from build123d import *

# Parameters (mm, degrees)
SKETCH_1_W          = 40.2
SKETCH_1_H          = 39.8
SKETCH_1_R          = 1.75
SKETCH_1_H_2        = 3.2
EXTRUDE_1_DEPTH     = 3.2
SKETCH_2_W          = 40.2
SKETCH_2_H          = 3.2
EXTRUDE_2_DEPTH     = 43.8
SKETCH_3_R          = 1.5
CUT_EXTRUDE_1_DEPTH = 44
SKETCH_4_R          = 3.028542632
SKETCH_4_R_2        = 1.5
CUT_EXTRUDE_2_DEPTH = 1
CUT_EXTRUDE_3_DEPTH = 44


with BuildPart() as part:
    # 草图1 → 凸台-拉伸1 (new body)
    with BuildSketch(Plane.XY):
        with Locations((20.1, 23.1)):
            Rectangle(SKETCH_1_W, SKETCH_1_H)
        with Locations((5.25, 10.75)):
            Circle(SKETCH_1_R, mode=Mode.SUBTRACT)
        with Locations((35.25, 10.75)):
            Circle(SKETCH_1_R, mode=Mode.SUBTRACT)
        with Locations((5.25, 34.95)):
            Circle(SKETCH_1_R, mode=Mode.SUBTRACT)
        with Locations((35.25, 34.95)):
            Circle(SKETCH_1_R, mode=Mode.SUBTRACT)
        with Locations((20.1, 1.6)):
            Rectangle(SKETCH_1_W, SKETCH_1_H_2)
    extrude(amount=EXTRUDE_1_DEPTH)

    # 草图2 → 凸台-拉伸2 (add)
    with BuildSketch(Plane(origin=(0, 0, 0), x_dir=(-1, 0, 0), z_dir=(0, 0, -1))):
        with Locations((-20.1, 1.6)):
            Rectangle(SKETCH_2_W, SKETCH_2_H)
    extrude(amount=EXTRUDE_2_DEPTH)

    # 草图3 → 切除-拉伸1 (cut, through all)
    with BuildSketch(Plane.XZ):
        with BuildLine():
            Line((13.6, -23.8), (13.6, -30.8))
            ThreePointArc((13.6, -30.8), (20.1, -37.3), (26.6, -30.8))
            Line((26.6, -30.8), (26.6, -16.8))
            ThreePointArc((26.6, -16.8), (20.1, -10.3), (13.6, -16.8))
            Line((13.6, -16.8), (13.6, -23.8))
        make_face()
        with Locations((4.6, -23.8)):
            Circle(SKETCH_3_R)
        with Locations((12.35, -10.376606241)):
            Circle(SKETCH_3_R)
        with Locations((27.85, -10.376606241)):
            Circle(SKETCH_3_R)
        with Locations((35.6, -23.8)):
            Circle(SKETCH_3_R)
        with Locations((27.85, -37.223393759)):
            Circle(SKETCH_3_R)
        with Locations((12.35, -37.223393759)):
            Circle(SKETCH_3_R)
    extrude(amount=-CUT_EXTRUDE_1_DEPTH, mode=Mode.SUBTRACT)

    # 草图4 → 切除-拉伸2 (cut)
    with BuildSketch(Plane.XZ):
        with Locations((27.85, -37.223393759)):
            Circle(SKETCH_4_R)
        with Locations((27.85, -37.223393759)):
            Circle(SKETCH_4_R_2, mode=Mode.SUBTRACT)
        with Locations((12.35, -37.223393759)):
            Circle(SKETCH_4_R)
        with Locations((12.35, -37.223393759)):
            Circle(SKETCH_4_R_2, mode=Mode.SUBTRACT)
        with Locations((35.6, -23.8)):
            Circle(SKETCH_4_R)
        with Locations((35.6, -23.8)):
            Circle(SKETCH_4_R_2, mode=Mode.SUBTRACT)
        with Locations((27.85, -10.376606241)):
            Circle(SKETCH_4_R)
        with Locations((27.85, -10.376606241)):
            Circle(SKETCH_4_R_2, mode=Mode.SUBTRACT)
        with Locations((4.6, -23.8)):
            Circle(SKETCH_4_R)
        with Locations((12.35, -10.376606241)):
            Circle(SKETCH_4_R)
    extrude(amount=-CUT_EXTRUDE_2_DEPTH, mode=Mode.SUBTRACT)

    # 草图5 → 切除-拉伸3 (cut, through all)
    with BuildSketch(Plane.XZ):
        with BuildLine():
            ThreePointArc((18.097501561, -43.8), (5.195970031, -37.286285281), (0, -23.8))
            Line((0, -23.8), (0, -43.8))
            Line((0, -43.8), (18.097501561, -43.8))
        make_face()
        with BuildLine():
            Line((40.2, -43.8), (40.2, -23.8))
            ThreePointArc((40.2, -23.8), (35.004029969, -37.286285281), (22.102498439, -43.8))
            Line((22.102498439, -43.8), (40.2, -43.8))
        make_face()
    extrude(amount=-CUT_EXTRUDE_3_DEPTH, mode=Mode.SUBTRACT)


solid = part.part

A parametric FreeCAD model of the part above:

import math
import FreeCAD as App
import Part
import Sketcher
from FreeCAD import Vector

doc = App.newDocument("Part")
body = doc.addObject("PartDesign::Body", "Body")

sketch1 = body.newObject("Sketcher::SketchObject", "Sketch")
sketch1.AttachmentSupport = (doc.getObject("XY_Plane"), [""])
sketch1.MapMode = "FlatFace"
sketch1.addGeometry(Part.LineSegment(Vector(0, 43, 0), Vector(0, 0, 0)), False)
sketch1.addGeometry(Part.LineSegment(Vector(0, 0, 0), Vector(40.2, 0, 0)), False)
sketch1.addGeometry(Part.LineSegment(Vector(40.2, 0, 0), Vector(40.2, 43, 0)), False)
sketch1.addGeometry(Part.LineSegment(Vector(40.2, 43, 0), Vector(0, 43, 0)), False)
sketch1.addGeometry(Part.Circle(Vector(5.25, 10.75, 0), Vector(0, 0, 1), 1.75), False)
sketch1.addGeometry(Part.Circle(Vector(35.25, 10.75, 0), Vector(0, 0, 1), 1.75), False)
sketch1.addGeometry(Part.Circle(Vector(5.25, 34.95, 0), Vector(0, 0, 1), 1.75), False)
sketch1.addGeometry(Part.Circle(Vector(35.25, 34.95, 0), Vector(0, 0, 1), 1.75), False)
sketch1.addConstraint(Sketcher.Constraint("Coincident", 0, 2, 1, 1))
sketch1.addConstraint(Sketcher.Constraint("Coincident", 1, 2, 2, 1))
sketch1.addConstraint(Sketcher.Constraint("Coincident", 2, 2, 3, 1))
sketch1.addConstraint(Sketcher.Constraint("Coincident", 3, 2, 0, 1))
sketch1.addConstraint(Sketcher.Constraint("Vertical", 0))
sketch1.addConstraint(Sketcher.Constraint("Horizontal", 1))
sketch1.addConstraint(Sketcher.Constraint("Vertical", 2))
sketch1.addConstraint(Sketcher.Constraint("Horizontal", 3))
sketch1.addConstraint(Sketcher.Constraint("Coincident", 0, 2, -1, 1))
sketch1.addConstraint(Sketcher.Constraint("Equal", 4, 5))
sketch1.addConstraint(Sketcher.Constraint("Equal", 5, 6))
sketch1.addConstraint(Sketcher.Constraint("Equal", 6, 7))
sketch1.addConstraint(Sketcher.Constraint("Horizontal", 4, 3, 5, 3))
sketch1.addConstraint(Sketcher.Constraint("Horizontal", 6, 3, 7, 3))
sketch1.addConstraint(Sketcher.Constraint("Vertical", 4, 3, 6, 3))
sketch1.addConstraint(Sketcher.Constraint("Vertical", 5, 3, 7, 3))
sketch1.addConstraint(Sketcher.Constraint("Diameter", 4, 3.5))
sketch1.addConstraint(Sketcher.Constraint("DistanceY", 0, 2, 0, 1, 43.0))
sketch1.addConstraint(Sketcher.Constraint("DistanceX", 1, 1, 1, 2, 40.2))
sketch1.addConstraint(Sketcher.Constraint("DistanceX", 4, 3, 5, 3, 30.0))
sketch1.addConstraint(Sketcher.Constraint("DistanceY", 4, 3, 6, 3, 24.2))
sketch1.addConstraint(Sketcher.Constraint("DistanceX", -1, 1, 4, 3, 5.25))
sketch1.addConstraint(Sketcher.Constraint("DistanceY", -1, 1, 4, 3, 10.75))
pad1 = body.newObject("PartDesign::Pad", "Pad")
pad1.Profile = sketch1
pad1.Length = 3.2

sketch2 = body.newObject("Sketcher::SketchObject", "Sketch001")
sketch2.AttachmentSupport = (doc.getObject("XY_Plane"), [""])
sketch2.MapMode = "FlatFace"
sketch2.addGeometry(Part.LineSegment(Vector(40.2, 3.2, 0), Vector(40.2, 0, 0)), False)
sketch2.addGeometry(Part.LineSegment(Vector(40.2, 0, 0), Vector(0, 0, 0)), False)
sketch2.addGeometry(Part.LineSegment(Vector(0, 0, 0), Vector(0, 3.2, 0)), False)
sketch2.addGeometry(Part.LineSegment(Vector(0, 3.2, 0), Vector(40.2, 3.2, 0)), False)
sketch2.addConstraint(Sketcher.Constraint("Coincident", 0, 2, 1, 1))
sketch2.addConstraint(Sketcher.Constraint("Coincident", 1, 2, 2, 1))
sketch2.addConstraint(Sketcher.Constraint("Coincident", 2, 2, 3, 1))
sketch2.addConstraint(Sketcher.Constraint("Coincident", 3, 2, 0, 1))
sketch2.addConstraint(Sketcher.Constraint("Vertical", 0))
sketch2.addConstraint(Sketcher.Constraint("Horizontal", 1))
sketch2.addConstraint(Sketcher.Constraint("Vertical", 2))
sketch2.addConstraint(Sketcher.Constraint("Horizontal", 3))
sketch2.addConstraint(Sketcher.Constraint("Coincident", 1, 2, -1, 1))
sketch2.addConstraint(Sketcher.Constraint("DistanceX", 1, 2, 1, 1, 40.2))
sketch2.addConstraint(Sketcher.Constraint("DistanceY", 0, 2, 0, 1, 3.2))
pad2 = body.newObject("PartDesign::Pad", "Pad001")
pad2.Profile = sketch2
pad2.Length = 43.8
pad2.Reversed = True

sketch3 = body.newObject("Sketcher::SketchObject", "Sketch002")
sketch3.AttachmentSupport = (doc.getObject("XZ_Plane"), [""])
sketch3.MapMode = "FlatFace"
sketch3.addGeometry(Part.ArcOfCircle(Part.Circle(Vector(20.1, -30.8, 0), Vector(0, 0, 1), 6.5), math.radians(180), math.radians(360)), False)
sketch3.addGeometry(Part.LineSegment(Vector(26.6, -30.8, 0), Vector(26.6, -16.8, 0)), False)
sketch3.addGeometry(Part.ArcOfCircle(Part.Circle(Vector(20.1, -16.8, 0), Vector(0, 0, 1), 6.5), math.radians(0), math.radians(180)), False)
sketch3.addGeometry(Part.LineSegment(Vector(13.6, -16.8, 0), Vector(13.6, -30.8, 0)), False)
sketch3.addGeometry(Part.Circle(Vector(4.6, -23.8, 0), Vector(0, 0, 1), 1.5), False)
sketch3.addGeometry(Part.Circle(Vector(12.35, -10.376606, 0), Vector(0, 0, 1), 1.5), False)
sketch3.addGeometry(Part.Circle(Vector(27.85, -10.376606, 0), Vector(0, 0, 1), 1.5), False)
sketch3.addGeometry(Part.Circle(Vector(35.6, -23.8, 0), Vector(0, 0, 1), 1.5), False)
sketch3.addGeometry(Part.Circle(Vector(27.85, -37.223394, 0), Vector(0, 0, 1), 1.5), False)
sketch3.addGeometry(Part.Circle(Vector(12.35, -37.223394, 0), Vector(0, 0, 1), 1.5), False)
sketch3.addConstraint(Sketcher.Constraint("Tangent", 0, 2, 1, 1))
sketch3.addConstraint(Sketcher.Constraint("Tangent", 1, 2, 2, 1))
sketch3.addConstraint(Sketcher.Constraint("Tangent", 2, 2, 3, 1))
sketch3.addConstraint(Sketcher.Constraint("Tangent", 3, 2, 0, 1))
sketch3.addConstraint(Sketcher.Constraint("Vertical", 1))
sketch3.addConstraint(Sketcher.Constraint("Vertical", 3))
sketch3.addConstraint(Sketcher.Constraint("Equal", 4, 5))
sketch3.addConstraint(Sketcher.Constraint("Equal", 5, 6))
sketch3.addConstraint(Sketcher.Constraint("Equal", 6, 7))
sketch3.addConstraint(Sketcher.Constraint("Equal", 7, 8))
sketch3.addConstraint(Sketcher.Constraint("Equal", 8, 9))
sketch3.addConstraint(Sketcher.Constraint("Horizontal", 5, 3, 6, 3))
sketch3.addConstraint(Sketcher.Constraint("Horizontal", 4, 3, 7, 3))
sketch3.addConstraint(Sketcher.Constraint("Horizontal", 8, 3, 9, 3))
sketch3.addConstraint(Sketcher.Constraint("Vertical", 6, 3, 8, 3))
sketch3.addConstraint(Sketcher.Constraint("Vertical", 5, 3, 9, 3))
sketch3.addConstraint(Sketcher.Constraint("Diameter", 4, 3.0))
sketch3.addConstraint(Sketcher.Constraint("Radius", 0, 6.5))
sketch3.addConstraint(Sketcher.Constraint("DistanceY", 1, 1, 1, 2, 14.0))
sketch3.addConstraint(Sketcher.Constraint("DistanceY", 0, 3, 4, 3, 7.0))
sketch3.addConstraint(Sketcher.Constraint("DistanceX", 4, 3, 7, 3, 31.0))
sketch3.addConstraint(Sketcher.Constraint("DistanceX", 0, 2, 7, 3, 9.0))
sketch3.addConstraint(Sketcher.Constraint("DistanceX", -1, 1, 0, 3, 20.1))
sketch3.addConstraint(Sketcher.Constraint("DistanceY", 0, 3, -1, 1, 30.8))
sketch3.addConstraint(Sketcher.Constraint("DistanceX", 5, 3, 6, 3, 15.5))
sketch3.addConstraint(Sketcher.Constraint("DistanceX", -1, 1, 5, 3, 12.35))
sketch3.addConstraint(Sketcher.Constraint("DistanceY", 5, 3, -1, 1, 10.376606))
sketch3.addConstraint(Sketcher.Constraint("DistanceY", 8, 3, -1, 1, 37.223394))
pocket1 = body.newObject("PartDesign::Pocket", "Pocket")
pocket1.Profile = sketch3
pocket1.Type = "ThroughAll"

sketch4 = body.newObject("Sketcher::SketchObject", "Sketch003")
sketch4.AttachmentSupport = (doc.getObject("XZ_Plane"), [""])
sketch4.MapMode = "FlatFace"
sketch4.addGeometry(Part.Circle(Vector(27.85, -37.223394, 0), Vector(0, 0, 1), 3.028543), False)
sketch4.addGeometry(Part.Circle(Vector(27.85, -37.223394, 0), Vector(0, 0, 1), 1.5), False)
sketch4.addGeometry(Part.Circle(Vector(12.35, -37.223394, 0), Vector(0, 0, 1), 3.028543), False)
sketch4.addGeometry(Part.Circle(Vector(12.35, -37.223394, 0), Vector(0, 0, 1), 1.5), False)
sketch4.addGeometry(Part.Circle(Vector(35.6, -23.8, 0), Vector(0, 0, 1), 3.028543), False)
sketch4.addGeometry(Part.Circle(Vector(35.6, -23.8, 0), Vector(0, 0, 1), 1.5), False)
sketch4.addGeometry(Part.Circle(Vector(27.85, -10.376606, 0), Vector(0, 0, 1), 3.028543), False)
sketch4.addGeometry(Part.Circle(Vector(27.85, -10.376606, 0), Vector(0, 0, 1), 1.5), False)
sketch4.addGeometry(Part.Circle(Vector(4.6, -23.8, 0), Vector(0, 0, 1), 3.028543), False)
sketch4.addGeometry(Part.Circle(Vector(12.35, -10.376606, 0), Vector(0, 0, 1), 3.028543), False)
sketch4.addConstraint(Sketcher.Constraint("Coincident", 1, 3, 0, 3))
sketch4.addConstraint(Sketcher.Constraint("Coincident", 3, 3, 2, 3))
sketch4.addConstraint(Sketcher.Constraint("Coincident", 5, 3, 4, 3))
sketch4.addConstraint(Sketcher.Constraint("Coincident", 7, 3, 6, 3))
sketch4.addConstraint(Sketcher.Constraint("Equal", 0, 2))
sketch4.addConstraint(Sketcher.Constraint("Equal", 1, 3))
sketch4.addConstraint(Sketcher.Constraint("Equal", 2, 4))
sketch4.addConstraint(Sketcher.Constraint("Equal", 3, 5))
sketch4.addConstraint(Sketcher.Constraint("Equal", 4, 6))
sketch4.addConstraint(Sketcher.Constraint("Equal", 5, 7))
sketch4.addConstraint(Sketcher.Constraint("Equal", 6, 8))
sketch4.addConstraint(Sketcher.Constraint("Equal", 8, 9))
sketch4.addConstraint(Sketcher.Constraint("Horizontal", 1, 3, 2, 3))
sketch4.addConstraint(Sketcher.Constraint("Horizontal", 5, 3, 8, 3))
sketch4.addConstraint(Sketcher.Constraint("Horizontal", 7, 3, 9, 3))
sketch4.addConstraint(Sketcher.Constraint("Vertical", 1, 3, 6, 3))
sketch4.addConstraint(Sketcher.Constraint("Vertical", 3, 3, 9, 3))
sketch4.addConstraint(Sketcher.Constraint("Diameter", 1, 3.0))
sketch4.addConstraint(Sketcher.Constraint("DistanceX", -1, 1, 4, 3, 35.6))
sketch4.addConstraint(Sketcher.Constraint("DistanceY", 4, 3, -1, 1, 23.8))
sketch4.addConstraint(Sketcher.Constraint("DistanceX", -1, 1, 8, 3, 4.6))
sketch4.addConstraint(Sketcher.Constraint("DistanceX", 2, 3, 0, 3, 15.5))
sketch4.addConstraint(Sketcher.Constraint("DistanceX", -1, 1, 0, 3, 27.85))
sketch4.addConstraint(Sketcher.Constraint("Diameter", 0, 6.057085))
sketch4.addConstraint(Sketcher.Constraint("DistanceY", 0, 3, -1, 1, 37.223394))
sketch4.addConstraint(Sketcher.Constraint("DistanceY", 6, 3, -1, 1, 10.376606))
pocket2 = body.newObject("PartDesign::Pocket", "Pocket001")
pocket2.Profile = sketch4
pocket2.Length = 1

sketch5 = body.newObject("Sketcher::SketchObject", "Sketch004")
sketch5.AttachmentSupport = (doc.getObject("XZ_Plane"), [""])
sketch5.MapMode = "FlatFace"
sketch5.addGeometry(Part.ArcOfCircle(Part.Circle(Vector(20.1, -23.8, 0), Vector(0, 0, 1), 20.1), math.radians(180), math.radians(264.28232)), False)
sketch5.addGeometry(Part.LineSegment(Vector(0, -23.8, 0), Vector(0, -43.8, 0)), False)
sketch5.addGeometry(Part.LineSegment(Vector(0, -43.8, 0), Vector(18.097502, -43.8, 0)), False)
sketch5.addGeometry(Part.LineSegment(Vector(40.2, -43.8, 0), Vector(40.2, -23.8, 0)), False)
sketch5.addGeometry(Part.ArcOfCircle(Part.Circle(Vector(20.1, -23.8, 0), Vector(0, 0, 1), 20.1), math.radians(-84.28232), math.radians(0)), False)
sketch5.addGeometry(Part.LineSegment(Vector(22.102498, -43.8, 0), Vector(40.2, -43.8, 0)), False)
sketch5.addConstraint(Sketcher.Constraint("Tangent", 0, 1, 1, 1))
sketch5.addConstraint(Sketcher.Constraint("Coincident", 1, 2, 2, 1))
sketch5.addConstraint(Sketcher.Constraint("Coincident", 2, 2, 0, 2))
sketch5.addConstraint(Sketcher.Constraint("Tangent", 3, 2, 4, 2))
sketch5.addConstraint(Sketcher.Constraint("Coincident", 4, 1, 5, 1))
sketch5.addConstraint(Sketcher.Constraint("Coincident", 5, 2, 3, 1))
sketch5.addConstraint(Sketcher.Constraint("Vertical", 1))
sketch5.addConstraint(Sketcher.Constraint("Horizontal", 2))
sketch5.addConstraint(Sketcher.Constraint("Vertical", 3))
sketch5.addConstraint(Sketcher.Constraint("Horizontal", 5))
sketch5.addConstraint(Sketcher.Constraint("Coincident", 4, 3, 0, 3))
sketch5.addConstraint(Sketcher.Constraint("Equal", 0, 4))
sketch5.addConstraint(Sketcher.Constraint("PointOnObject", 0, 1, -2))
sketch5.addConstraint(Sketcher.Constraint("Horizontal", 2, 2, 4, 1))
sketch5.addConstraint(Sketcher.Constraint("Radius", 0, 20.1))
sketch5.addConstraint(Sketcher.Constraint("DistanceY", 1, 2, 1, 1, 20.0))
sketch5.addConstraint(Sketcher.Constraint("DistanceY", 0, 3, -1, 1, 23.8))
pocket3 = body.newObject("PartDesign::Pocket", "Pocket002")
pocket3.Profile = sketch5
pocket3.Type = "ThroughAll"

doc.recompute()
